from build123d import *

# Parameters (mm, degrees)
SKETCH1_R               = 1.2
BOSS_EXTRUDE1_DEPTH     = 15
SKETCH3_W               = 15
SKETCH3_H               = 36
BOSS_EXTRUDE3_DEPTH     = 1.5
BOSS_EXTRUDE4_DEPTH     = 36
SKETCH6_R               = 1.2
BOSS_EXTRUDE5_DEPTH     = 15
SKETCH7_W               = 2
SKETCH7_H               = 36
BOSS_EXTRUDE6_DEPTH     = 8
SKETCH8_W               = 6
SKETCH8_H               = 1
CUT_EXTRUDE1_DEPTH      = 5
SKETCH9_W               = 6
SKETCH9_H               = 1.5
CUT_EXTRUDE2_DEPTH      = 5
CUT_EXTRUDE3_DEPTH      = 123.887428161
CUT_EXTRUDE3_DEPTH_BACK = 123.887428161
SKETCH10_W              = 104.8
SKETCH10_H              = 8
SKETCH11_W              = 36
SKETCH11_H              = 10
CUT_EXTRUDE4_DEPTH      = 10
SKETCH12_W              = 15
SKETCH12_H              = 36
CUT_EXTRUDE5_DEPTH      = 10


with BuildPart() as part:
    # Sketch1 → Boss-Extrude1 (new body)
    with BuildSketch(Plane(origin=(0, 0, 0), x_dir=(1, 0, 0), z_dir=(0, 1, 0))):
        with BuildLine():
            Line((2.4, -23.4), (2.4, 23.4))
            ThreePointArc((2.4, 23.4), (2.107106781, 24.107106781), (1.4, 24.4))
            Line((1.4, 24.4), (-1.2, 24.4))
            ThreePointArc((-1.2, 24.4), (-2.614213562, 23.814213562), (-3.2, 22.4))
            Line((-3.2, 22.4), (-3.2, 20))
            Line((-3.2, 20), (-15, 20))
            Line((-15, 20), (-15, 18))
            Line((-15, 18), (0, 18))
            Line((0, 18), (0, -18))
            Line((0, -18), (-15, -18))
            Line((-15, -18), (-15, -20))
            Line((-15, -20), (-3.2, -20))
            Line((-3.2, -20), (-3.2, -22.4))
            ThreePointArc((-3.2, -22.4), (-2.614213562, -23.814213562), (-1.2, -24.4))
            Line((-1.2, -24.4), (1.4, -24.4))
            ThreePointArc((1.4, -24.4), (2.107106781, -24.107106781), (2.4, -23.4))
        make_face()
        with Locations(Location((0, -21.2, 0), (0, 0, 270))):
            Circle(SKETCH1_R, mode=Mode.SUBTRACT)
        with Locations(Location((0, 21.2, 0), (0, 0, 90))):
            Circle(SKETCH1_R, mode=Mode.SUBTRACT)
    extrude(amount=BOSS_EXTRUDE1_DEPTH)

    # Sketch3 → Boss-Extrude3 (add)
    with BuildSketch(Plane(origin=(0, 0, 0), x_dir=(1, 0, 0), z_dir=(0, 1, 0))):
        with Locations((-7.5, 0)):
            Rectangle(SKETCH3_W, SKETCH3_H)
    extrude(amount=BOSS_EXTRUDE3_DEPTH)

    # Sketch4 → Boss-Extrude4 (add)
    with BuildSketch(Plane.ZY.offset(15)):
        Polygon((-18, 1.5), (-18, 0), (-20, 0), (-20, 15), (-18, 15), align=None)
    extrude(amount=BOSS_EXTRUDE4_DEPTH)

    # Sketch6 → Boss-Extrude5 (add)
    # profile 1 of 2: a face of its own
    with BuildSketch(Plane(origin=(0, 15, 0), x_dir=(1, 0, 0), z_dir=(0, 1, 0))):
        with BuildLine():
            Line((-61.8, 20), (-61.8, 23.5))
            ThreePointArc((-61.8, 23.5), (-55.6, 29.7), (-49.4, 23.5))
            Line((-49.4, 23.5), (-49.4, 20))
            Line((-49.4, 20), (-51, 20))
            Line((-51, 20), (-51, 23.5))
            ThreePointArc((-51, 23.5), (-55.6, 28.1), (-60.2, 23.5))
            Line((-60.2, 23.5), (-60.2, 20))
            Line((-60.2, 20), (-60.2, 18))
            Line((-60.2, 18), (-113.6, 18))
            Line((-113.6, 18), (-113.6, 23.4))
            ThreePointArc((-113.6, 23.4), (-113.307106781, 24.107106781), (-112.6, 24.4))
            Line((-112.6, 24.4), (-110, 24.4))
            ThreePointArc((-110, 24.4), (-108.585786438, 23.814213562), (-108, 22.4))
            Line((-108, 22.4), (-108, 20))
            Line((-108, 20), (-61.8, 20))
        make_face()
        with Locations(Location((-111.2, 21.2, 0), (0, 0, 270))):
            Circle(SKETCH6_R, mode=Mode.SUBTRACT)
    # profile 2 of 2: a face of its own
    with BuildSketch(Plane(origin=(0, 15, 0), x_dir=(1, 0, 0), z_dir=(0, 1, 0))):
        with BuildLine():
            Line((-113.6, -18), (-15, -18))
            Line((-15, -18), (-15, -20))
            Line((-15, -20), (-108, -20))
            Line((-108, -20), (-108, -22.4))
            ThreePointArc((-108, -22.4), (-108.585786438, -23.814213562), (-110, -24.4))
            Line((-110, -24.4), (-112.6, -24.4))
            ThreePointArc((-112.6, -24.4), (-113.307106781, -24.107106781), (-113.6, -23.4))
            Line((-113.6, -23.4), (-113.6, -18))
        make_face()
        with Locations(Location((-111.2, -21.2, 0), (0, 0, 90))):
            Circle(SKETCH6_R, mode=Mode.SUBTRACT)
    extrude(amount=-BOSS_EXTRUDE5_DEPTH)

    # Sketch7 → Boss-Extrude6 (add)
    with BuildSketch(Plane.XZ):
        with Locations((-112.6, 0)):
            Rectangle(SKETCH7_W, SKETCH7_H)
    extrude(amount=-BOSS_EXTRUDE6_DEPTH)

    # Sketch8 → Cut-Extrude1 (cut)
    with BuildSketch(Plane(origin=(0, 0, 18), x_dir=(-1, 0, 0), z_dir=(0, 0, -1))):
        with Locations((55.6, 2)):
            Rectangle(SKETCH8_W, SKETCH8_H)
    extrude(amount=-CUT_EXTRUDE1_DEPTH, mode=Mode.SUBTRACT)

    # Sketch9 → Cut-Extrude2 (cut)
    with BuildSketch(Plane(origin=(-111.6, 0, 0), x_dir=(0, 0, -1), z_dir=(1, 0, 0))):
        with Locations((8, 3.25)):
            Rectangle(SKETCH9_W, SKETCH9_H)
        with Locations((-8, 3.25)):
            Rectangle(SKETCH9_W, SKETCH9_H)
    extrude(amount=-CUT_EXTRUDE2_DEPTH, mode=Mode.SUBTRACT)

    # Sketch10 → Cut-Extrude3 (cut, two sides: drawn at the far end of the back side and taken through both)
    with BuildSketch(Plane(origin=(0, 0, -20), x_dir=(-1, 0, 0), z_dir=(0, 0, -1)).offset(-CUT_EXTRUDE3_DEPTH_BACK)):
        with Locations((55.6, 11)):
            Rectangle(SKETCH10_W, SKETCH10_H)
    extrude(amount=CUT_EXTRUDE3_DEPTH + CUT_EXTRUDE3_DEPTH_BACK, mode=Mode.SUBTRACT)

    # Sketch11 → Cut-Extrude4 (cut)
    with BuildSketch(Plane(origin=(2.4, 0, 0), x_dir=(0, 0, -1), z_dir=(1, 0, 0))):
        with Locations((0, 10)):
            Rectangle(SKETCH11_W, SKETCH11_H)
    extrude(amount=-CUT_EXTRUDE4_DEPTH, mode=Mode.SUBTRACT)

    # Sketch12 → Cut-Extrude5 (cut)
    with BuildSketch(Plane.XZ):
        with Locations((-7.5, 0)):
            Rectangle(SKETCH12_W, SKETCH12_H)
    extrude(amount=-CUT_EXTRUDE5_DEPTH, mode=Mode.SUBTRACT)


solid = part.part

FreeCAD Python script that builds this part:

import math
import FreeCAD as App
import Part
import Sketcher

V = App.Vector


def add_polygon(sketch, points):
    """Adds a closed chain of lines whose ends are joined by coincident constraints."""
    first, n = sketch.GeometryCount, len(points)
    for a, b in zip(points, points[1:] + points[:1]):
        sketch.addGeometry(Part.LineSegment(App.Vector(*a, 0), App.Vector(*b, 0)), False)
    for i in range(n):
        sketch.addConstraint(Sketcher.Constraint("Coincident", first + i, 2, first + (i + 1) % n, 1))

doc = App.newDocument("Part")
params = doc.addObject("Spreadsheet::Sheet", "Params")
for row, (alias, value) in enumerate([
    ("sketch1_radius", "1 mm"),
    ("sketch1_radius2", "2 mm"),
    ("sketch1_diameter", "2.4 mm"),
    ("sketch1_width", "15 mm"),
    ("sketch1_height", "2 mm"),
    ("pad1_length", "15 mm"),
    ("sketch2_width", "15 mm"),
    ("sketch2_height", "36 mm"),
    ("pad2_length", "1.5 mm"),
    ("sketch3_width", "15 mm"),
    ("sketch3_height", "2 mm"),
    ("pad3_length", "36 mm"),
    ("sketch4_radius", "2 mm"),
    ("sketch4_radius2", "1 mm"),
    ("sketch4_diameter", "2.4 mm"),
    ("sketch4_radius3", "4.6 mm"),
    ("sketch4_radius4", "6.2 mm"),
    ("pad4_length", "15 mm"),
    ("sketch5_width", "2 mm"),
    ("sketch5_height", "36 mm"),
    ("pad5_length", "8 mm"),
    ("sketch6_width", "6 mm"),
    ("sketch6_height", "1 mm"),
    ("pocket1_length", "5 mm"),
    ("sketch7_height", "6 mm"),
    ("sketch7_width", "1.5 mm"),
    ("pocket2_length", "5 mm"),
    ("sketch8_height", "8 mm"),
    ("sketch8_width", "104.8 mm"),
    ("sketch9_width", "10 mm"),
    ("sketch9_height", "36 mm"),
    ("pocket4_length", "10 mm"),
    ("sketch10_width", "15 mm"),
    ("sketch10_height", "36 mm"),
    ("pocket5_length", "10 mm"),
], start=1):
    params.set(f"A{row}", alias)
    params.set(f"B{row}", "=" + value)
    params.setAlias(f"B{row}", alias)

body = doc.addObject("PartDesign::Body", "Body")

# Sketch on XZ plane
sketch1 = body.newObject("Sketcher::SketchObject", "Sketch")
sketch1.AttachmentSupport = (doc.getObject("XZ_Plane"), [""])
sketch1.MapMode = "FlatFace"
sketch1.addGeometry([
    Part.LineSegment(V(2.4, 23.4, 0), V(2.4, -23.4, 0)),  # 0
    Part.ArcOfCircle(Part.Circle(V(1.4, -23.4, 0), V(0, 0, 1), 1), math.radians(-90), math.radians(0)),  # 1
    Part.LineSegment(V(1.4, -24.4, 0), V(-1.2, -24.4, 0)),  # 2
    Part.ArcOfCircle(Part.Circle(V(-1.2, -22.4, 0), V(0, 0, 1), 2), math.radians(-180), math.radians(-90)),  # 3
    Part.LineSegment(V(-3.2, -22.4, 0), V(-3.2, -20, 0)),  # 4
    Part.LineSegment(V(-3.2, -20, 0), V(-15, -20, 0)),  # 5
    Part.LineSegment(V(-15, -20, 0), V(-15, -18, 0)),  # 6
    Part.LineSegment(V(-15, -18, 0), V(0, -18, 0)),  # 7
    Part.LineSegment(V(0, -18, 0), V(0, 18, 0)),  # 8
    Part.LineSegment(V(0, 18, 0), V(-15, 18, 0)),  # 9
    Part.LineSegment(V(-15, 18, 0), V(-15, 20, 0)),  # 10
    Part.LineSegment(V(-15, 20, 0), V(-3.2, 20, 0)),  # 11
    Part.LineSegment(V(-3.2, 20, 0), V(-3.2, 22.4, 0)),  # 12
    Part.ArcOfCircle(Part.Circle(V(-1.2, 22.4, 0), V(0, 0, 1), 2), math.radians(90), math.radians(180)),  # 13
    Part.LineSegment(V(-1.2, 24.4, 0), V(1.4, 24.4, 0)),  # 14
    Part.ArcOfCircle(Part.Circle(V(1.4, 23.4, 0), V(0, 0, 1), 1), math.radians(0), math.radians(90)),  # 15
    Part.Circle(V(0, 21.2, 0), V(0, 0, 1), 1.2),  # 16
    Part.Circle(V(0, -21.2, 0), V(0, 0, 1), 1.2),  # 17
], False)
sketch1.addConstraint([
    Sketcher.Constraint("Tangent", 0, 2, 1, 2),
    Sketcher.Constraint("Tangent", 1, 1, 2, 1),
    Sketcher.Constraint("Tangent", 2, 2, 3, 2),
    Sketcher.Constraint("Tangent", 3, 1, 4, 1),
    Sketcher.Constraint("Coincident", 4, 2, 5, 1),
    Sketcher.Constraint("Coincident", 5, 2, 6, 1),
    Sketcher.Constraint("Coincident", 6, 2, 7, 1),
    Sketcher.Constraint("Coincident", 7, 2, 8, 1),
    Sketcher.Constraint("Coincident", 8, 2, 9, 1),
    Sketcher.Constraint("Coincident", 9, 2, 10, 1),
    Sketcher.Constraint("Coincident", 10, 2, 11, 1),
    Sketcher.Constraint("Coincident", 11, 2, 12, 1),
    Sketcher.Constraint("Tangent", 12, 2, 13, 2),
    Sketcher.Constraint("Tangent", 13, 1, 14, 1),
    Sketcher.Constraint("Tangent", 14, 2, 15, 2),
    Sketcher.Constraint("Tangent", 15, 1, 0, 1),
    Sketcher.Constraint("Vertical", 0),
    Sketcher.Constraint("Horizontal", 2),
    Sketcher.Constraint("Vertical", 4),
    Sketcher.Constraint("Horizontal", 5),
    Sketcher.Constraint("Vertical", 6),
    Sketcher.Constraint("Horizontal", 7),
    Sketcher.Constraint("Vertical", 8),
    Sketcher.Constraint("Horizontal", 9),
    Sketcher.Constraint("Vertical", 10),
    Sketcher.Constraint("Horizontal", 11),
    Sketcher.Constraint("Vertical", 12),
    Sketcher.Constraint("Horizontal", 14),
    Sketcher.Constraint("Equal", 3, 13),
    Sketcher.Constraint("Equal", 1, 15),
    Sketcher.Constraint("Equal", 16, 17),
    Sketcher.Constraint("Symmetric", 16, 3, 17, 3, -1, 1),
    Sketcher.Constraint("Symmetric", 7, 2, 8, 2, -1, 1),
    Sketcher.Constraint("Symmetric", 3, 3, 13, 3, -1),
    Sketcher.Constraint("Symmetric", 5, 2, 10, 2, -1),
    Sketcher.Constraint("PointOnObject", 16, 3, -2),
    Sketcher.Constraint("Radius", 1, 1.0),
    Sketcher.Constraint("Radius", 3, 2.0),
    Sketcher.Constraint("Diameter", 16, 2.4),
    Sketcher.Constraint("DistanceX", 7, 1, 7, 2, 15.0),
    Sketcher.Constraint("DistanceY", 6, 1, 6, 2, 2.0),
    Sketcher.Constraint("DistanceY", 8, 1, 8, 2, 36.0),
    Sketcher.Constraint("DistanceX", 2, 2, 2, 1, 2.6),
    Sketcher.Constraint("DistanceX", 5, 2, 5, 1, 11.8),
    Sketcher.Constraint("DistanceY", 0, 2, 0, 1, 46.8),
    Sketcher.Constraint("DistanceY", -1, 1, 16, 3, 21.2),
])
sketch1.setExpression("Constraints[36]", "Params.sketch1_radius")
sketch1.setExpression("Constraints[37]", "Params.sketch1_radius2")
sketch1.setExpression("Constraints[38]", "Params.sketch1_diameter")
sketch1.setExpression("Constraints[39]", "Params.sketch1_width")
sketch1.setExpression("Constraints[40]", "Params.sketch1_height")
pad1 = body.newObject("PartDesign::Pad", "Pad")
pad1.Profile = sketch1
pad1.setExpression("Length", "Params.pad1_length")
pad1.Reversed = True

# Sketch on XZ plane
sketch2 = body.newObject("Sketcher::SketchObject", "Sketch001")
sketch2.AttachmentSupport = (doc.getObject("XZ_Plane"), [""])
sketch2.MapMode = "FlatFace"
add_polygon(sketch2, [(-15, -18), (-15, 18), (0, 18), (0, -18)])  # lines 0-3
sketch2.addConstraint([
    Sketcher.Constraint("Vertical", 0),
    Sketcher.Constraint("Horizontal", 1),
    Sketcher.Constraint("Vertical", 2),
    Sketcher.Constraint("Horizontal", 3),
    Sketcher.Constraint("Symmetric", 1, 2, 2, 2, -1, 1),
    Sketcher.Constraint("DistanceX", 1, 1, 1, 2, 15.0),
    Sketcher.Constraint("DistanceY", 0, 1, 0, 2, 36.0),
])
sketch2.setExpression("Constraints[9]", "Params.sketch2_width")
sketch2.setExpression("Constraints[10]", "Params.sketch2_height")
pad2 = body.newObject("PartDesign::Pad", "Pad001")
pad2.Profile = sketch2
pad2.setExpression("Length", "Params.pad2_length")
pad2.Reversed = True

# Sketch on YZ plane
sketch3 = body.newObject("Sketcher::SketchObject", "Sketch002")
sketch3.AttachmentSupport = (doc.getObject("YZ_Plane"), [""])
sketch3.MapMode = "FlatFace"
sketch3.AttachmentOffset = App.Placement(V(0, 0, -15), App.Rotation())
add_polygon(sketch3, [(0, -18), (15, -18), (15, -20), (0, -20)])  # lines 0-3
sketch3.addConstraint([
    Sketcher.Constraint("Horizontal", 0),
    Sketcher.Constraint("Vertical", 1),
    Sketcher.Constraint("Horizontal", 2),
    Sketcher.Constraint("Vertical", 3),
    Sketcher.Constraint("PointOnObject", 2, 2, -2),
    Sketcher.Constraint("DistanceX", 0, 1, 0, 2, 15.0),
    Sketcher.Constraint("DistanceY", 1, 2, 1, 1, 2.0),
    Sketcher.Constraint("DistanceY", 0, 2, -1, 1, 18.0),
])
sketch3.setExpression("Constraints[9]", "Params.sketch3_width")
sketch3.setExpression("Constraints[10]", "Params.sketch3_height")
pad3 = body.newObject("PartDesign::Pad", "Pad002")
pad3.Profile = sketch3
pad3.setExpression("Length", "Params.pad3_length")
pad3.Reversed = True

# Sketch on XZ plane
sketch4 = body.newObject("Sketcher::SketchObject", "Sketch003")
sketch4.AttachmentSupport = (doc.getObject("XZ_Plane"), [""])
sketch4.MapMode = "FlatFace"
sketch4.AttachmentOffset = App.Placement(V(0, 0, -15), App.Rotation())
sketch4.addGeometry([
    Part.LineSegment(V(-61.8, -23.5, 0), V(-61.8, -20, 0)),  # 0
    Part.LineSegment(V(-61.8, -20, 0), V(-108, -20, 0)),  # 1
    Part.LineSegment(V(-108, -20, 0), V(-108, -22.4, 0)),  # 2
    Part.ArcOfCircle(Part.Circle(V(-110, -22.4, 0), V(0, 0, 1), 2), math.radians(-90), math.radians(0)),  # 3
    Part.LineSegment(V(-110, -24.4, 0), V(-112.6, -24.4, 0)),  # 4
    Part.ArcOfCircle(Part.Circle(V(-112.6, -23.4, 0), V(0, 0, 1), 1), math.radians(-180), math.radians(-90)),  # 5
    Part.LineSegment(V(-113.6, -23.4, 0), V(-113.6, -18, 0)),  # 6
    Part.LineSegment(V(-113.6, -18, 0), V(-60.2, -18, 0)),  # 7
    Part.LineSegment(V(-60.2, -18, 0), V(-60.2, -23.5, 0)),  # 8
    Part.ArcOfCircle(Part.Circle(V(-55.6, -23.5, 0), V(0, 0, 1), 4.6), math.radians(180), math.radians(360)),  # 9
    Part.LineSegment(V(-51, -23.5, 0), V(-51, -20, 0)),  # 10
    Part.LineSegment(V(-51, -20, 0), V(-49.4, -20, 0)),  # 11
    Part.LineSegment(V(-49.4, -20, 0), V(-49.4, -23.5, 0)),  # 12
    Part.ArcOfCircle(Part.Circle(V(-55.6, -23.5, 0), V(0, 0, 1), 6.2), math.radians(180), math.radians(360)),  # 13
    Part.Circle(V(-111.2, -21.2, 0), V(0, 0, 1), 1.2),  # 14
    Part.LineSegment(V(-15, 18, 0), V(-113.6, 18, 0)),  # 15
    Part.LineSegment(V(-113.6, 18, 0), V(-113.6, 23.4, 0)),  # 16
    Part.ArcOfCircle(Part.Circle(V(-112.6, 23.4, 0), V(0, 0, 1), 1), math.radians(90), math.radians(180)),  # 17
    Part.LineSegment(V(-112.6, 24.4, 0), V(-110, 24.4, 0)),  # 18
    Part.ArcOfCircle(Part.Circle(V(-110, 22.4, 0), V(0, 0, 1), 2), math.radians(0), math.radians(90)),  # 19
    Part.LineSegment(V(-108, 22.4, 0), V(-108, 20, 0)),  # 20
    Part.LineSegment(V(-108, 20, 0), V(-15, 20, 0)),  # 21
    Part.LineSegment(V(-15, 20, 0), V(-15, 18, 0)),  # 22
    Part.Circle(V(-111.2, 21.2, 0), V(0, 0, 1), 1.2),  # 23
], False)
sketch4.addConstraint([
    Sketcher.Constraint("Coincident", 0, 2, 1, 1),
    Sketcher.Constraint("Coincident", 1, 2, 2, 1),
    Sketcher.Constraint("Tangent", 2, 2, 3, 2),
    Sketcher.Constraint("Tangent", 3, 1, 4, 1),
    Sketcher.Constraint("Tangent", 4, 2, 5, 2),
    Sketcher.Constraint("Tangent", 5, 1, 6, 1),
    Sketcher.Constraint("Coincident", 6, 2, 7, 1),
    Sketcher.Constraint("Coincident", 7, 2, 8, 1),
    Sketcher.Constraint("Tangent", 8, 2, 9, 1),
    Sketcher.Constraint("Tangent", 9, 2, 10, 1),
    Sketcher.Constraint("Coincident", 10, 2, 11, 1),
    Sketcher.Constraint("Coincident", 11, 2, 12, 1),
    Sketcher.Constraint("Tangent", 12, 2, 13, 2),
    Sketcher.Constraint("Tangent", 13, 1, 0, 1),
    Sketcher.Constraint("Coincident", 15, 2, 16, 1),
    Sketcher.Constraint("Tangent", 16, 2, 17, 2),
    Sketcher.Constraint("Tangent", 17, 1, 18, 1),
    Sketcher.Constraint("Tangent", 18, 2, 19, 2),
    Sketcher.Constraint("Tangent", 19, 1, 20, 1),
    Sketcher.Constraint("Coincident", 20, 2, 21, 1),
    Sketcher.Constraint("Coincident", 21, 2, 22, 1),
    Sketcher.Constraint("Coincident", 22, 2, 15, 1),
    Sketcher.Constraint("Vertical", 0),
    Sketcher.Constraint("Horizontal", 1),
    Sketcher.Constraint("Vertical", 2),
    Sketcher.Constraint("Horizontal", 4),
    Sketcher.Constraint("Vertical", 6),
    Sketcher.Constraint("Horizontal", 7),
    Sketcher.Constraint("Vertical", 8),
    Sketcher.Constraint("Vertical", 10),
    Sketcher.Constraint("Horizontal", 11),
    Sketcher.Constraint("Vertical", 12),
    Sketcher.Constraint("Horizontal", 15),
    Sketcher.Constraint("Vertical", 16),
    Sketcher.Constraint("Horizontal", 18),
    Sketcher.Constraint("Vertical", 20),
    Sketcher.Constraint("Horizontal", 21),
    Sketcher.Constraint("Vertical", 22),
    Sketcher.Constraint("Coincident", 13, 3, 9, 3),
    Sketcher.Constraint("Equal", 5, 17),
    Sketcher.Constraint("Equal", 3, 19),
    Sketcher.Constraint("Equal", 14, 23),
    Sketcher.Constraint("Symmetric", 5, 3, 17, 3, -1),
    Sketcher.Constraint("Symmetric", 14, 3, 23, 3, -1),
    Sketcher.Constraint("Symmetric", 1, 2, 20, 2, -1),
    Sketcher.Constraint("Horizontal", 1, 2, 10, 2),
    Sketcher.Constraint("Equal", 6, 16),
    Sketcher.Constraint("Radius", 3, 2.0),
    Sketcher.Constraint("Radius", 5, 1.0),
    Sketcher.Constraint("Diameter", 14, 2.4),
    Sketcher.Constraint("Radius", 9, 4.6),
    Sketcher.Constraint("Radius", 13, 6.2),
    Sketcher.Constraint("DistanceX", 21, 1, 21, 2, 93.0),
    Sketcher.Constraint("DistanceY", 22, 2, 22, 1, 2.0),
    Sketcher.Constraint("DistanceX", 1, 2, 1, 1, 46.2),
    Sketcher.Constraint("DistanceX", 4, 2, 4, 1, 2.6),
    Sketcher.Constraint("DistanceY", 0, 1, 0, 2, 3.5),
    Sketcher.Constraint("DistanceY", 2, 2, 2, 1, 2.4),
    Sketcher.Constraint("DistanceX", 3, 3, -1, 1, 110.0),
    Sketcher.Constraint("DistanceY", 0, 2, -1, 1, 20.0),
    Sketcher.Constraint("DistanceX", 14, 3, -1, 1, 111.2),
    Sketcher.Constraint("DistanceY", 14, 3, -1, 1, 21.2),
])
sketch4.setExpression("Constraints[47]", "Params.sketch4_radius")
sketch4.setExpression("Constraints[48]", "Params.sketch4_radius2")
sketch4.setExpression("Constraints[49]", "Params.sketch4_diameter")
sketch4.setExpression("Constraints[50]", "Params.sketch4_radius3")
sketch4.setExpression("Constraints[51]", "Params.sketch4_radius4")
pad4 = body.newObject("PartDesign::Pad", "Pad003")
pad4.Profile = sketch4
pad4.setExpression("Length", "Params.pad4_length")

# Sketch on XZ plane
sketch5 = body.newObject("Sketcher::SketchObject", "Sketch004")
sketch5.AttachmentSupport = (doc.getObject("XZ_Plane"), [""])
sketch5.MapMode = "FlatFace"
add_polygon(sketch5, [(-113.6, 18), (-113.6, -18), (-111.6, -18), (-111.6, 18)])  # lines 0-3
sketch5.addConstraint([
    Sketcher.Constraint("Vertical", 0),
    Sketcher.Constraint("Horizontal", 1),
    Sketcher.Constraint("Vertical", 2),
    Sketcher.Constraint("Horizontal", 3),
    Sketcher.Constraint("DistanceX", 1, 1, 1, 2, 2.0),
    Sketcher.Constraint("DistanceY", 0, 2, 0, 1, 36.0),
    Sketcher.Constraint("DistanceY", 0, 2, -1, 1, 18.0),
    Sketcher.Constraint("DistanceX", 0, 2, -1, 1, 113.6),
])
sketch5.setExpression("Constraints[8]", "Params.sketch5_width")
sketch5.setExpression("Constraints[9]", "Params.sketch5_height")
pad5 = body.newObject("PartDesign::Pad", "Pad004")
pad5.Profile = sketch5
pad5.setExpression("Length", "Params.pad5_length")
pad5.Reversed = True

# Sketch on XY plane
sketch6 = body.newObject("Sketcher::SketchObject", "Sketch005")
sketch6.AttachmentSupport = (doc.getObject("XY_Plane"), [""])
sketch6.MapMode = "FlatFace"
sketch6.AttachmentOffset = App.Placement(V(0, 0, 18), App.Rotation())
add_polygon(sketch6, [(-52.6, 2.5), (-52.6, 1.5), (-58.6, 1.5), (-58.6, 2.5)])  # lines 0-3
sketch6.addConstraint([
    Sketcher.Constraint("Vertical", 0),
    Sketcher.Constraint("Horizontal", 1),
    Sketcher.Constraint("Vertical", 2),
    Sketcher.Constraint("Horizontal", 3),
    Sketcher.Constraint("DistanceX", 1, 2, 1, 1, 6.0),
    Sketcher.Constraint("DistanceY", 0, 2, 0, 1, 1.0),
    Sketcher.Constraint("DistanceX", 0, 2, -1, 1, 52.6),
    Sketcher.Constraint("DistanceY", -1, 1, 0, 2, 1.5),
])
sketch6.setExpression("Constraints[8]", "Params.sketch6_width")
sketch6.setExpression("Constraints[9]", "Params.sketch6_height")
pocket1 = body.newObject("PartDesign::Pocket", "Pocket")
pocket1.Profile = sketch6
pocket1.setExpression("Length", "Params.pocket1_length")
pocket1.Reversed = True

# Sketch on YZ plane
sketch7 = body.newObject("Sketcher::SketchObject", "Sketch006")
sketch7.AttachmentSupport = (doc.getObject("YZ_Plane"), [""])
sketch7.MapMode = "FlatFace"
sketch7.AttachmentOffset = App.Placement(V(0, 0, -111.6), App.Rotation())
add_polygon(sketch7, [(4, -5), (2.5, -5), (2.5, -11), (4, -11)])  # lines 0-3
add_polygon(sketch7, [(4, 11), (2.5, 11), (2.5, 5), (4, 5)])  # lines 4-7
sketch7.addConstraint([
    Sketcher.Constraint("Horizontal", 0),
    Sketcher.Constraint("Vertical", 1),
    Sketcher.Constraint("Horizontal", 2),
    Sketcher.Constraint("Vertical", 3),
    Sketcher.Constraint("Horizontal", 4),
    Sketcher.Constraint("Vertical", 5),
    Sketcher.Constraint("Horizontal", 6),
    Sketcher.Constraint("Vertical", 7),
    Sketcher.Constraint("Symmetric", 1, 2, 4, 2, -1),
    Sketcher.Constraint("Symmetric", 3, 2, 6, 2, -1),
    Sketcher.Constraint("DistanceY", 1, 2, 1, 1, 6.0),
    Sketcher.Constraint("DistanceX", 0, 2, 0, 1, 1.5),
    Sketcher.Constraint("DistanceY", 0, 2, -1, 1, 5.0),
    Sketcher.Constraint("DistanceX", -1, 1, 2, 2, 4.0),
])
sketch7.setExpression("Constraints[18]", "Params.sketch7_height")
sketch7.setExpression("Constraints[19]", "Params.sketch7_width")
pocket2 = body.newObject("PartDesign::Pocket", "Pocket001")
pocket2.Profile = sketch7
pocket2.setExpression("Length", "Params.pocket2_length")

# Sketch on XY plane
sketch8 = body.newObject("Sketcher::SketchObject", "Sketch007")
sketch8.AttachmentSupport = (doc.getObject("XY_Plane"), [""])
sketch8.MapMode = "FlatFace"
sketch8.AttachmentOffset = App.Placement(V(0, 0, -20), App.Rotation())
add_polygon(sketch8, [(-3, 15), (-3, 7), (-108, 7), (-108, 15)])  # lines 0-3
sketch8.addConstraint([
    Sketcher.Constraint("Vertical", 0),
    Sketcher.Constraint("Horizontal", 1),
    Sketcher.Constraint("Vertical", 2),
    Sketcher.Constraint("Horizontal", 3),
    Sketcher.Constraint("DistanceY", 0, 2, 0, 1, 8.0),
    Sketcher.Constraint("DistanceX", 1, 2, 1, 1, 104.8),
    Sketcher.Constraint("DistanceY", -1, 1, 0, 2, 7.0),
    Sketcher.Constraint("DistanceX", 1, 2, -1, 1, 108.0),
])
sketch8.setExpression("Constraints[8]", "Params.sketch8_height")
sketch8.setExpression("Constraints[9]", "Params.sketch8_width")
pocket3 = body.newObject("PartDesign::Pocket", "Pocket002")
pocket3.Profile = sketch8
pocket3.Type = "ThroughAll"
pocket3.Midplane = True

# Sketch on YZ plane
sketch9 = body.newObject("Sketcher::SketchObject", "Sketch008")
sketch9.AttachmentSupport = (doc.getObject("YZ_Plane"), [""])
sketch9.MapMode = "FlatFace"
sketch9.AttachmentOffset = App.Placement(V(0, 0, 2.4), App.Rotation())
add_polygon(sketch9, [(15, 18), (5, 18), (5, -18), (15, -18)])  # lines 0-3
sketch9.addConstraint([
    Sketcher.Constraint("Horizontal", 0),
    Sketcher.Constraint("Vertical", 1),
    Sketcher.Constraint("Horizontal", 2),
    Sketcher.Constraint("Vertical", 3),
    Sketcher.Constraint("DistanceX", 0, 2, 0, 1, 10.0),
    Sketcher.Constraint("DistanceY", 1, 2, 1, 1, 36.0),
    Sketcher.Constraint("DistanceX", -1, 1, 0, 2, 5.0),
    Sketcher.Constraint("DistanceY", -1, 1, 0, 2, 18.0),
])
sketch9.setExpression("Constraints[8]", "Params.sketch9_width")
sketch9.setExpression("Constraints[9]", "Params.sketch9_height")
pocket4 = body.newObject("PartDesign::Pocket", "Pocket003")
pocket4.Profile = sketch9
pocket4.setExpression("Length", "Params.pocket4_length")

# Sketch on XZ plane
sketch10 = body.newObject("Sketcher::SketchObject", "Sketch009")
sketch10.AttachmentSupport = (doc.getObject("XZ_Plane"), [""])
sketch10.MapMode = "FlatFace"
add_polygon(sketch10, [(-15, 18), (-15, -18), (0, -18), (0, 18)])  # lines 0-3
sketch10.addConstraint([
    Sketcher.Constraint("Vertical", 0),
    Sketcher.Constraint("Horizontal", 1),
    Sketcher.Constraint("Vertical", 2),
    Sketcher.Constraint("Horizontal", 3),
    Sketcher.Constraint("Symmetric", 1, 2, 2, 2, -1, 1),
    Sketcher.Constraint("DistanceX", 1, 1, 1, 2, 15.0),
    Sketcher.Constraint("DistanceY", 0, 2, 0, 1, 36.0),
])
sketch10.setExpression("Constraints[9]", "Params.sketch10_width")
sketch10.setExpression("Constraints[10]", "Params.sketch10_height")
pocket5 = body.newObject("PartDesign::Pocket", "Pocket004")
pocket5.Profile = sketch10
pocket5.setExpression("Length", "Params.pocket5_length")

doc.recompute()
